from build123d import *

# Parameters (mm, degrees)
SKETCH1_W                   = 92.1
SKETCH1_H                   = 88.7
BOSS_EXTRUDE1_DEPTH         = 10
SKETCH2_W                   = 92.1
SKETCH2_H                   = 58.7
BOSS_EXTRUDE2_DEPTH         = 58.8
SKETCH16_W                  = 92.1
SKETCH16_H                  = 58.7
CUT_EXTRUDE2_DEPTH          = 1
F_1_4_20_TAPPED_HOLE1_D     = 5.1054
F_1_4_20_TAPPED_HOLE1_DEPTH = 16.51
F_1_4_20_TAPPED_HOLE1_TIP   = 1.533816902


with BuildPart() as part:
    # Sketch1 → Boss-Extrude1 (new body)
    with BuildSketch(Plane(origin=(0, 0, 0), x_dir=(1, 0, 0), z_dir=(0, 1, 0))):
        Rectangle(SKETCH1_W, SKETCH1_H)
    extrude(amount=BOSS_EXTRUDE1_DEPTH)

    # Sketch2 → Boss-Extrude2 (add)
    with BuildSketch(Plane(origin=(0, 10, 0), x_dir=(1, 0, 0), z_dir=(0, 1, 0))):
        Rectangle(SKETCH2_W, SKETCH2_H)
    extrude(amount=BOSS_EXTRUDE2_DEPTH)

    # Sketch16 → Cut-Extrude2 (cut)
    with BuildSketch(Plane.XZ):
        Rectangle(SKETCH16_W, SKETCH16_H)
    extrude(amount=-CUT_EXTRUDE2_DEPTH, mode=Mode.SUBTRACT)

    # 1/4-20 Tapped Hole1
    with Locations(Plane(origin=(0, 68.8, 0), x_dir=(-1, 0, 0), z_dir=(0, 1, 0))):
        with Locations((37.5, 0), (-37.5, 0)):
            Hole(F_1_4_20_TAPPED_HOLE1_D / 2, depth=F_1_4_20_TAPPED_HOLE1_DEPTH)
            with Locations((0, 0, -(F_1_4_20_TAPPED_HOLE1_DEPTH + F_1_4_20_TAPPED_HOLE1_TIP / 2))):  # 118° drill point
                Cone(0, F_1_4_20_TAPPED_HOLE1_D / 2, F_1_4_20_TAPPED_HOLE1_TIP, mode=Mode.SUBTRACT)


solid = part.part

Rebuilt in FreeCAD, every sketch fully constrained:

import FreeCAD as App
import Part
import Sketcher
Q = App.Units.Quantity


def add_polygon(sketch, points):
    """Adds a closed chain of lines whose ends are joined by coincident constraints."""
    first, n = sketch.GeometryCount, len(points)
    for a, b in zip(points, points[1:] + points[:1]):
        sketch.addGeometry(Part.LineSegment(App.Vector(*a, 0), App.Vector(*b, 0)), False)
    for i in range(n):
        sketch.addConstraint(Sketcher.Constraint("Coincident", first + i, 2, first + (i + 1) % n, 1))

doc = App.newDocument("Part")
body = doc.addObject("PartDesign::Body", "Body")

sketch1 = doc.addObject("Sketcher::SketchObject", "Sketch")
body.addObject(sketch1)
sketch1.AttachmentSupport = (doc.XZ_Plane, [""])
sketch1.MapMode = "FlatFace"
add_polygon(sketch1, [(-46, -44), (-46, 44), (46, 44), (46, -44)])
sketch1.addConstraint(Sketcher.Constraint("Vertical", 0))
sketch1.addConstraint(Sketcher.Constraint("Horizontal", 1))
sketch1.addConstraint(Sketcher.Constraint("Vertical", 2))
sketch1.addConstraint(Sketcher.Constraint("Horizontal", 3))
sketch1.addConstraint(Sketcher.Constraint("Symmetric", 0, 2, 2, 2, -1, 1))
sketch1.addConstraint(Sketcher.Constraint("DistanceX", 1, 1, 1, 2, Q("92.1 mm")))
sketch1.addConstraint(Sketcher.Constraint("DistanceY", 0, 1, 0, 2, Q("88.7 mm")))
pad1 = doc.addObject("PartDesign::Pad", "Pad")
body.addObject(pad1)
pad1.Profile = sketch1
pad1.Length = 10
pad1.Reversed = True

sketch2 = doc.addObject("Sketcher::SketchObject", "Sketch001")
body.addObject(sketch2)
sketch2.AttachmentSupport = (doc.XZ_Plane, [""])
sketch2.MapMode = "FlatFace"
sketch2.AttachmentOffset = App.Placement(App.Vector(0, 0, -10), App.Rotation())
add_polygon(sketch2, [(-46, -29), (-46, 29), (46, 29), (46, -29)])
sketch2.addConstraint(Sketcher.Constraint("Vertical", 0))
sketch2.addConstraint(Sketcher.Constraint("Horizontal", 1))
sketch2.addConstraint(Sketcher.Constraint("Vertical", 2))
sketch2.addConstraint(Sketcher.Constraint("Horizontal", 3))
sketch2.addConstraint(Sketcher.Constraint("Symmetric", 0, 2, 2, 2, -1, 1))
sketch2.addConstraint(Sketcher.Constraint("DistanceX", 1, 1, 1, 2, Q("92.1 mm")))
sketch2.addConstraint(Sketcher.Constraint("DistanceY", 0, 1, 0, 2, Q("58.7 mm")))
pad2 = doc.addObject("PartDesign::Pad", "Pad001")
body.addObject(pad2)
pad2.Profile = sketch2
pad2.Length = 58.8
pad2.Reversed = True

sketch3 = doc.addObject("Sketcher::SketchObject", "Sketch002")
body.addObject(sketch3)
sketch3.AttachmentSupport = (doc.XZ_Plane, [""])
sketch3.MapMode = "FlatFace"
add_polygon(sketch3, [(-46, 29), (-46, -29), (46, -29), (46, 29)])
sketch3.addConstraint(Sketcher.Constraint("Vertical", 0))
sketch3.addConstraint(Sketcher.Constraint("Horizontal", 1))
sketch3.addConstraint(Sketcher.Constraint("Vertical", 2))
sketch3.addConstraint(Sketcher.Constraint("Horizontal", 3))
sketch3.addConstraint(Sketcher.Constraint("Symmetric", 0, 2, 2, 2, -1, 1))
sketch3.addConstraint(Sketcher.Constraint("DistanceX", 1, 1, 1, 2, Q("92.1 mm")))
sketch3.addConstraint(Sketcher.Constraint("DistanceY", 0, 2, 0, 1, Q("58.7 mm")))
pocket1 = doc.addObject("PartDesign::Pocket", "Pocket")
body.addObject(pocket1)
pocket1.Profile = sketch3
pocket1.Length = 1

sketch4 = doc.addObject("Sketcher::SketchObject", "Sketch003")
body.addObject(sketch4)
sketch4.AttachmentSupport = (doc.XZ_Plane, [""])
sketch4.MapMode = "FlatFace"
sketch4.AttachmentOffset = App.Placement(App.Vector(0, 0, -68.8), App.Rotation())
sketch4.addGeometry(Part.Circle(App.Vector(-37.5, 0, 0), App.Vector(0, 0, 1), 2.6), False)
sketch4.addGeometry(Part.Circle(App.Vector(37.5, 0, 0), App.Vector(0, 0, 1), 2.6), False)
sketch4.addConstraint(Sketcher.Constraint("Equal", 0, 1))
sketch4.addConstraint(Sketcher.Constraint("Symmetric", 0, 3, 1, 3, -1, 1))
sketch4.addConstraint(Sketcher.Constraint("PointOnObject", 0, 3, -1))
sketch4.addConstraint(Sketcher.Constraint("DistanceX", 0, 3, 1, 3, Q("75 mm")))
sketch4.addConstraint(Sketcher.Constraint("Diameter", 0, Q("5.1054 mm")))
doc.recompute()
hole = doc.addObject("PartDesign::Hole", "Hole")
body.addObject(hole)
hole.Profile = sketch4
hole.ThreadType = "None"
hole.Diameter = 5.1054
hole.DepthType = "Dimension"
hole.Depth = 16.51
hole.DrillPoint = "Angled"
hole.DrillPointAngle = 118
hole.Reversed = True

doc.recompute()
